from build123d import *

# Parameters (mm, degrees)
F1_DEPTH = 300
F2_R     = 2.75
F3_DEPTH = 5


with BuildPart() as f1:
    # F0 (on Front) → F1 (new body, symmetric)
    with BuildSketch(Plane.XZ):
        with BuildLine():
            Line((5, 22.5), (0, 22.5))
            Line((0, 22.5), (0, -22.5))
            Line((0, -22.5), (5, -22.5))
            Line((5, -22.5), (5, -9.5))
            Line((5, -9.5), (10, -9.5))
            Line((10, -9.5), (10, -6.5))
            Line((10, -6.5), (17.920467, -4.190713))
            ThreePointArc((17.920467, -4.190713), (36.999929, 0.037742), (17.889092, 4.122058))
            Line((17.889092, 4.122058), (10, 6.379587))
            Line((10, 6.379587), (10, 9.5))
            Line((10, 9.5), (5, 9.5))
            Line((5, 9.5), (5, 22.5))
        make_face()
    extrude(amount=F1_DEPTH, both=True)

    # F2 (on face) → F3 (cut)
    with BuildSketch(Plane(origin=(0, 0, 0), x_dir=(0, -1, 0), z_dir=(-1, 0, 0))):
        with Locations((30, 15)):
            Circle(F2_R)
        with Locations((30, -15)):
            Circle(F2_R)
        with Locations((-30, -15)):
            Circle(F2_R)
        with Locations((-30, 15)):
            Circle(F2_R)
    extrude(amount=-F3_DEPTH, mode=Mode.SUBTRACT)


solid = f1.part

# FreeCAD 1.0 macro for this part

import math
import FreeCAD as App
import Part
import Sketcher

V = App.Vector
Q = App.Units.Quantity

doc = App.newDocument("Part")
body = doc.addObject("PartDesign::Body", "Body")

# Sketch on XZ plane
sketch1 = body.newObject("Sketcher::SketchObject", "Sketch")
sketch1.AttachmentSupport = (doc.getObject("XZ_Plane"), [""])
sketch1.MapMode = "FlatFace"
sketch1.addGeometry([
    Part.LineSegment(V(5, 22.5, 0), V(0, 22.5, 0)),  # 0
    Part.LineSegment(V(0, 22.5, 0), V(0, -22.5, 0)),  # 1
    Part.LineSegment(V(0, -22.5, 0), V(5, -22.5, 0)),  # 2
    Part.LineSegment(V(5, -22.5, 0), V(5, -9.5, 0)),  # 3
    Part.LineSegment(V(5, -9.5, 0), V(10, -9.5, 0)),  # 4
    Part.LineSegment(V(10, -9.5, 0), V(10, -6.5, 0)),  # 5
    Part.LineSegment(V(10, -6.5, 0), V(17.9, -4.2, 0)),  # 6
    Part.ArcOfCircle(Part.Circle(V(27, 0, 0), V(0, 0, 1), 10), math.radians(-155), math.radians(156)),  # 7
    Part.LineSegment(V(17.9, 4.1, 0), V(10, 6.4, 0)),  # 8
    Part.LineSegment(V(10, 6.4, 0), V(10, 9.5, 0)),  # 9
    Part.LineSegment(V(10, 9.5, 0), V(5, 9.5, 0)),  # 10
    Part.LineSegment(V(5, 9.5, 0), V(5, 22.5, 0)),  # 11
], False)
sketch1.addConstraint([
    Sketcher.Constraint("Coincident", 0, 2, 1, 1),
    Sketcher.Constraint("Coincident", 1, 2, 2, 1),
    Sketcher.Constraint("Coincident", 2, 2, 3, 1),
    Sketcher.Constraint("Coincident", 3, 2, 4, 1),
    Sketcher.Constraint("Coincident", 4, 2, 5, 1),
    Sketcher.Constraint("Coincident", 5, 2, 6, 1),
    Sketcher.Constraint("Coincident", 6, 2, 7, 1),
    Sketcher.Constraint("Coincident", 7, 2, 8, 1),
    Sketcher.Constraint("Coincident", 8, 2, 9, 1),
    Sketcher.Constraint("Coincident", 9, 2, 10, 1),
    Sketcher.Constraint("Coincident", 10, 2, 11, 1),
    Sketcher.Constraint("Coincident", 11, 2, 0, 1),
    Sketcher.Constraint("Horizontal", 0),
    Sketcher.Constraint("Vertical", 1),
    Sketcher.Constraint("Horizontal", 2),
    Sketcher.Constraint("Vertical", 3),
    Sketcher.Constraint("Horizontal", 4),
    Sketcher.Constraint("Vertical", 5),
    Sketcher.Constraint("Vertical", 9),
    Sketcher.Constraint("Horizontal", 10),
    Sketcher.Constraint("Vertical", 11),
    Sketcher.Constraint("Symmetric", 0, 2, 1, 2, -1, 1),
    Sketcher.Constraint("Symmetric", 4, 2, 9, 2, -1),
    Sketcher.Constraint("PointOnObject", 7, 3, -1),
    Sketcher.Constraint("Vertical", 3, 2, 10, 2),
    Sketcher.Constraint("Equal", 2, 4),
    Sketcher.Constraint("Radius", 7, Q("10 mm")),
    Sketcher.Constraint("DistanceX", 0, 2, 0, 1, Q("5 mm")),
    Sketcher.Constraint("DistanceY", 1, 2, 1, 1, Q("45 mm")),
    Sketcher.Constraint("DistanceY", 3, 1, 3, 2, Q("13 mm")),
    Sketcher.Constraint("DistanceY", 5, 1, 5, 2, Q("3 mm")),
    Sketcher.Constraint("DistanceX", -1, 1, 7, 3, Q("27 mm")),
    Sketcher.Constraint("DistanceY", 6, 2, 8, 2, Q("10.5703 mm")),
    Sketcher.Constraint("Distance", 6, Q("8.250249 mm")),
    Sketcher.Constraint("DistanceY", 6, 2, 7, 2, Q("8.312771 mm")),
])
pad1 = body.newObject("PartDesign::Pad", "Pad")
pad1.Profile = sketch1
pad1.Length = 600
pad1.Midplane = True

# Sketch on YZ plane
sketch2 = body.newObject("Sketcher::SketchObject", "Sketch001")
sketch2.AttachmentSupport = (doc.getObject("YZ_Plane"), [""])
sketch2.MapMode = "FlatFace"
sketch2.addGeometry([
    Part.Circle(V(-30, 15, 0), V(0, 0, 1), 2.8),
    Part.Circle(V(-30, -15, 0), V(0, 0, 1), 2.8),
    Part.Circle(V(30, -15, 0), V(0, 0, 1), 2.8),
    Part.Circle(V(30, 15, 0), V(0, 0, 1), 2.8),
], False)
sketch2.addConstraint([
    Sketcher.Constraint("Equal", 0, 1),
    Sketcher.Constraint("Equal", 1, 2),
    Sketcher.Constraint("Equal", 2, 3),
    Sketcher.Constraint("Symmetric", 0, 3, 2, 3, -1, 1),
    Sketcher.Constraint("Symmetric", 1, 3, 3, 3, -1, 1),
    Sketcher.Constraint("Symmetric", 1, 3, 2, 3, -2),
    Sketcher.Constraint("Diameter", 0, Q("5.5 mm")),
    Sketcher.Constraint("DistanceX", 0, 3, -1, 1, Q("30 mm")),
    Sketcher.Constraint("DistanceY", -1, 1, 0, 3, Q("15 mm")),
])
pocket1 = body.newObject("PartDesign::Pocket", "Pocket")
pocket1.Profile = sketch2
pocket1.Length = 5
pocket1.Reversed = True

doc.recompute()
